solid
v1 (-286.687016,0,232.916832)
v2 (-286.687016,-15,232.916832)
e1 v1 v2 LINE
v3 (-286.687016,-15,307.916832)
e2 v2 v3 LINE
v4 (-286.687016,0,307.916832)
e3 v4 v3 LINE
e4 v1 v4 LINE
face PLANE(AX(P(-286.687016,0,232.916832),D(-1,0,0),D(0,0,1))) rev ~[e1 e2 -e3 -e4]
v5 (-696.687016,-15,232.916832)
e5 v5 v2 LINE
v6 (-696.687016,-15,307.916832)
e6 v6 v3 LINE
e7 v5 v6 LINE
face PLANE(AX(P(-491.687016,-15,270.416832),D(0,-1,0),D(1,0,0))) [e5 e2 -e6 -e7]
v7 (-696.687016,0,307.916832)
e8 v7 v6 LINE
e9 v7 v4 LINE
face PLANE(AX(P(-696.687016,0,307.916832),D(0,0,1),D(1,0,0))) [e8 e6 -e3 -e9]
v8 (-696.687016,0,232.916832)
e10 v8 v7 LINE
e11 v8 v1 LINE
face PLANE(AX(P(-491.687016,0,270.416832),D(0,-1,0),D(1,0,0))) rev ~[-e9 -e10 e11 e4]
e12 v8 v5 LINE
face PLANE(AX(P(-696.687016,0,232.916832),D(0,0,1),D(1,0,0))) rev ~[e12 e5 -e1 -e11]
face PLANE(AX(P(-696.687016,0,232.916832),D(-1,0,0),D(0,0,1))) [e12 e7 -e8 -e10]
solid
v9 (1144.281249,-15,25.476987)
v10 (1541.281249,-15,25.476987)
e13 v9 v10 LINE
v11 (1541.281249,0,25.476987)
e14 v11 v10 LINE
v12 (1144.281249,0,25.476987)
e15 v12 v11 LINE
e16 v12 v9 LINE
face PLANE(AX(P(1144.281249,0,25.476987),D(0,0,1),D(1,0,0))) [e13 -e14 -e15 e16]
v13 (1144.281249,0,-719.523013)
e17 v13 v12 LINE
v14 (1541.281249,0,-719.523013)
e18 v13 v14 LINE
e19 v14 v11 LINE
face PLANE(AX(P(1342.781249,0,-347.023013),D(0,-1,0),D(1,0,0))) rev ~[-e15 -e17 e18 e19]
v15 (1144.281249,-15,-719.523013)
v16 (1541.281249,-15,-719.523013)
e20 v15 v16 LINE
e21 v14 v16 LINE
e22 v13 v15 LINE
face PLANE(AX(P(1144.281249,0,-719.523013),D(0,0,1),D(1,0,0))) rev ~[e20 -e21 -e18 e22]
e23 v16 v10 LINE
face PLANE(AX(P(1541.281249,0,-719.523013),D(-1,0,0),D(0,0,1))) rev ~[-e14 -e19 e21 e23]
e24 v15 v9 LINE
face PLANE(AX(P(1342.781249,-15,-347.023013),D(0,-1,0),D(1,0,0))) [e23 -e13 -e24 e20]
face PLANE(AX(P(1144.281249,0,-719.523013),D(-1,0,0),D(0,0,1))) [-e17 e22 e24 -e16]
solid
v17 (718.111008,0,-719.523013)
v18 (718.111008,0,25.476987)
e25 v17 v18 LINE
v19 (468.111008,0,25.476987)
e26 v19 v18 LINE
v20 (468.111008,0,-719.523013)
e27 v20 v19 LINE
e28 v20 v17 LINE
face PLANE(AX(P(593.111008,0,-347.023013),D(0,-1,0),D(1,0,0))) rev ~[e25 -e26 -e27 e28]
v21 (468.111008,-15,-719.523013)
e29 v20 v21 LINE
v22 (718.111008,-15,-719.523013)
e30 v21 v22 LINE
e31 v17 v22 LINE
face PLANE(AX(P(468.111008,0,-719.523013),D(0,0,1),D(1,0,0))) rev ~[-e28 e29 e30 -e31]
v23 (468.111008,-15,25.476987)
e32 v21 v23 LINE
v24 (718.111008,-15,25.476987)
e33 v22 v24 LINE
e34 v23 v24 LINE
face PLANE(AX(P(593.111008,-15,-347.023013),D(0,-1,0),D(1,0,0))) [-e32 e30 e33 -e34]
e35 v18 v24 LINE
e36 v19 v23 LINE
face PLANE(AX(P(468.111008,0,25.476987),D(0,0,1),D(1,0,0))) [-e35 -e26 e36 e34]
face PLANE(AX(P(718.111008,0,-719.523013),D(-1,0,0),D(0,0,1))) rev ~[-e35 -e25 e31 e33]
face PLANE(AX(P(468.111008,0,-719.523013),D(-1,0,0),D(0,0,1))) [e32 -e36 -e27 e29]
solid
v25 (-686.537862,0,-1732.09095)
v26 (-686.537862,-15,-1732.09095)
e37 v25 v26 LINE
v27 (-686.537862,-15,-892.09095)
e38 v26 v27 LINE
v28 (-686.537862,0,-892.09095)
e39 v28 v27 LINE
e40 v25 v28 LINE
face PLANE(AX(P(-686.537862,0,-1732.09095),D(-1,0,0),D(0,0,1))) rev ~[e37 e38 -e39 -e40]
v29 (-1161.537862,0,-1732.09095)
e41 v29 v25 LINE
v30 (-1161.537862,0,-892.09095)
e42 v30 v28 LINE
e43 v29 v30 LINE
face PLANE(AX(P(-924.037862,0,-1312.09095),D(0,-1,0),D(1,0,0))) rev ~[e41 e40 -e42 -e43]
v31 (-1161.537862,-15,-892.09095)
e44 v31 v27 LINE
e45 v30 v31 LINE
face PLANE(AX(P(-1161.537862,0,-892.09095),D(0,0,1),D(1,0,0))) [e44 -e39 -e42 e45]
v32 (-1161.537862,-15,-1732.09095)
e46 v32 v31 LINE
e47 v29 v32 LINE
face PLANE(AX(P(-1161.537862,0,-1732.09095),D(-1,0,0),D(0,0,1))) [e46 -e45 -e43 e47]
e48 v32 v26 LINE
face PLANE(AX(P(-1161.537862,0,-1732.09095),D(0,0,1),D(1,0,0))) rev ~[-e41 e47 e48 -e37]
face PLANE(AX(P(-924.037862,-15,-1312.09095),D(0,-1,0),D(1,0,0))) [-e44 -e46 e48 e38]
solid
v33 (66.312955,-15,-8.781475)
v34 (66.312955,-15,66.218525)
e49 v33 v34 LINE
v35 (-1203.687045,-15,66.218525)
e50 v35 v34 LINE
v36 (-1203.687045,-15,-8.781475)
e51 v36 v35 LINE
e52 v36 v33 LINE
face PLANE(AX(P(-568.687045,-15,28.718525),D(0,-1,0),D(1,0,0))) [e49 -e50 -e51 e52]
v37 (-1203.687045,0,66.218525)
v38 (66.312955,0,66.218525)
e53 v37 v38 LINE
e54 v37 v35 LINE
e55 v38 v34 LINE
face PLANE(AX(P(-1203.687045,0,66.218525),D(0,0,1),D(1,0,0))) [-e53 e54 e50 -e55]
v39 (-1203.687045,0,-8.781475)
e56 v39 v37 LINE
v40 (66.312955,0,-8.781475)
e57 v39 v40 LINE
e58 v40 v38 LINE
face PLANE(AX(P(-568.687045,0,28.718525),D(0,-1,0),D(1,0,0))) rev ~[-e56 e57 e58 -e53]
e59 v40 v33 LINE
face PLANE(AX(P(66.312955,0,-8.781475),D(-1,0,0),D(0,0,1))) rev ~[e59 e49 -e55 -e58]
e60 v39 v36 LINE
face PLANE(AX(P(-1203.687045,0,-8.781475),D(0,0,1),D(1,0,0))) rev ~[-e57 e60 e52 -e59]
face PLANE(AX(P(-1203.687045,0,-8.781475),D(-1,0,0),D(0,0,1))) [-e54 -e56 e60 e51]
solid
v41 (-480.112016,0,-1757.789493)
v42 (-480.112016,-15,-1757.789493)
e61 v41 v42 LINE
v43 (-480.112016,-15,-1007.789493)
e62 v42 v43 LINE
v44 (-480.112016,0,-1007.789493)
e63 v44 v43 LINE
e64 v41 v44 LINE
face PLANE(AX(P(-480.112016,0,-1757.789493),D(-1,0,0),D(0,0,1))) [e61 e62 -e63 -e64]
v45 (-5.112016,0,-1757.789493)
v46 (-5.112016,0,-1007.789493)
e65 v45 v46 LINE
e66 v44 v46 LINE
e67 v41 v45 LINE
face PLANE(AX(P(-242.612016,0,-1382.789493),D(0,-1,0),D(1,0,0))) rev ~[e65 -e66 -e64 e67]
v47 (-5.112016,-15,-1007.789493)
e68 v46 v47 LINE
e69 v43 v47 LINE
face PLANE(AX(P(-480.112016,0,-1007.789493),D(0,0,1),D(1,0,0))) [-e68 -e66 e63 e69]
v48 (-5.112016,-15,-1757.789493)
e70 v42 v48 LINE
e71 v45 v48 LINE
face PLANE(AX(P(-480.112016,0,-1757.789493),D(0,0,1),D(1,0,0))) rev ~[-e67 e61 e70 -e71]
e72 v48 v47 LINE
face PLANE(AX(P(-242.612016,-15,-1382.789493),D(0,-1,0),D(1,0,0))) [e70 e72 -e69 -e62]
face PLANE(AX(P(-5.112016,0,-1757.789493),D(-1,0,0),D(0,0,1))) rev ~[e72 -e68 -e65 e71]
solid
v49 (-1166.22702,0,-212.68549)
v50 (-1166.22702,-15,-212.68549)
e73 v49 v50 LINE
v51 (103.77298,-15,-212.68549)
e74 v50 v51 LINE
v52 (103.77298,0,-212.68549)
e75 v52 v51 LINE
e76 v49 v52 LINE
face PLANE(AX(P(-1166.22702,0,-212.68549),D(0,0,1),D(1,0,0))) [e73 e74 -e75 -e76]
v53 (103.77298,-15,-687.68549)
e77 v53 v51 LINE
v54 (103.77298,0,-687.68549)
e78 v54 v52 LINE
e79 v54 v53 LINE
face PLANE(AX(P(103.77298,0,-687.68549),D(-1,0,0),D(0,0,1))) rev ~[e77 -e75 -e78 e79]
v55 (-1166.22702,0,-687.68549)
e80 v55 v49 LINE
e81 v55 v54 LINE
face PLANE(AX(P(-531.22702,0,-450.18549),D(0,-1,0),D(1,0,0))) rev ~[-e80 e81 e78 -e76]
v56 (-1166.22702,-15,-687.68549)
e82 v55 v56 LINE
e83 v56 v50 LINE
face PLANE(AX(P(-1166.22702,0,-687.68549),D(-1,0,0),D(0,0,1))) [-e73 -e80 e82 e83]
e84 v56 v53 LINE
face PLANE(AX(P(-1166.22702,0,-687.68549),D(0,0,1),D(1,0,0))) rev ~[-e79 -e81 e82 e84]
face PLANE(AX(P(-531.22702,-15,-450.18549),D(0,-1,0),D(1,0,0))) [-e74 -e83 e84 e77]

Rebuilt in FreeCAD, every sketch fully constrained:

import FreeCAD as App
import Part
import Sketcher

V = App.Vector


def add_polygon(sketch, points):
    """Adds a closed chain of lines whose ends are joined by coincident constraints."""
    first, n = sketch.GeometryCount, len(points)
    for a, b in zip(points, points[1:] + points[:1]):
        sketch.addGeometry(Part.LineSegment(App.Vector(*a, 0), App.Vector(*b, 0)), False)
    for i in range(n):
        sketch.addConstraint(Sketcher.Constraint("Coincident", first + i, 2, first + (i + 1) % n, 1))

doc = App.newDocument("Part")
body = doc.addObject("PartDesign::Body", "Body")

sketch1 = body.newObject("Sketcher::SketchObject", "Sketch")
sketch1.AttachmentSupport = (doc.getObject("XZ_Plane"), [""])
sketch1.MapMode = "FlatFace"
add_polygon(sketch1, [(-1204, 66), (-1204, -9), (66, -9), (66, 66)])
sketch1.addConstraint(Sketcher.Constraint("Vertical", 0))
sketch1.addConstraint(Sketcher.Constraint("Horizontal", 1))
sketch1.addConstraint(Sketcher.Constraint("Vertical", 2))
sketch1.addConstraint(Sketcher.Constraint("Horizontal", 3))
sketch1.addConstraint(Sketcher.Constraint("DistanceX", 1, 1, 1, 2, 1270.0))
sketch1.addConstraint(Sketcher.Constraint("DistanceY", 0, 2, 0, 1, 75.0))
sketch1.addConstraint(Sketcher.Constraint("DistanceX", 0, 2, -1, 1, 1203.687045))
sketch1.addConstraint(Sketcher.Constraint("DistanceY", 0, 2, -1, 1, 8.781475))
pad1 = body.newObject("PartDesign::Pad", "Pad")
pad1.Profile = sketch1
pad1.Length = 15
body2 = doc.addObject("PartDesign::Body", "Body001")

sketch2 = body2.newObject("Sketcher::SketchObject", "Sketch001")
sketch2.AttachmentSupport = (doc.getObject("XZ_Plane001"), [""])
sketch2.MapMode = "FlatFace"
add_polygon(sketch2, [(-1166, -213), (-1166, -688), (104, -688), (104, -213)])
sketch2.addConstraint(Sketcher.Constraint("Vertical", 0))
sketch2.addConstraint(Sketcher.Constraint("Horizontal", 1))
sketch2.addConstraint(Sketcher.Constraint("Vertical", 2))
sketch2.addConstraint(Sketcher.Constraint("Horizontal", 3))
sketch2.addConstraint(Sketcher.Constraint("DistanceX", 1, 1, 1, 2, 1270.0))
sketch2.addConstraint(Sketcher.Constraint("DistanceY", 0, 2, 0, 1, 475.0))
sketch2.addConstraint(Sketcher.Constraint("DistanceX", 0, 2, -1, 1, 1166.22702))
sketch2.addConstraint(Sketcher.Constraint("DistanceY", 0, 2, -1, 1, 687.68549))
pad2 = body2.newObject("PartDesign::Pad", "Pad001")
pad2.Profile = sketch2
pad2.Length = 15
body3 = doc.addObject("PartDesign::Body", "Body002")

sketch3 = body3.newObject("Sketcher::SketchObject", "Sketch002")
sketch3.AttachmentSupport = (doc.getObject("XZ_Plane002"), [""])
sketch3.MapMode = "FlatFace"
add_polygon(sketch3, [(-1162, -892), (-1162, -1732), (-687, -1732), (-687, -892)])
sketch3.addConstraint(Sketcher.Constraint("Vertical", 0))
sketch3.addConstraint(Sketcher.Constraint("Horizontal", 1))
sketch3.addConstraint(Sketcher.Constraint("Vertical", 2))
sketch3.addConstraint(Sketcher.Constraint("Horizontal", 3))
sketch3.addConstraint(Sketcher.Constraint("DistanceX", 1, 1, 1, 2, 475.0))
sketch3.addConstraint(Sketcher.Constraint("DistanceY", 0, 2, 0, 1, 840.0))
sketch3.addConstraint(Sketcher.Constraint("DistanceX", 0, 2, -1, 1, 1161.537862))
sketch3.addConstraint(Sketcher.Constraint("DistanceY", 0, 2, -1, 1, 1732.09095))
pad3 = body3.newObject("PartDesign::Pad", "Pad002")
pad3.Profile = sketch3
pad3.Length = 15
body4 = doc.addObject("PartDesign::Body", "Body003")

sketch4 = body4.newObject("Sketcher::SketchObject", "Sketch003")
sketch4.AttachmentSupport = (doc.getObject("XZ_Plane003"), [""])
sketch4.MapMode = "FlatFace"
add_polygon(sketch4, [(-697, 308), (-697, 233), (-287, 233), (-287, 308)])
sketch4.addConstraint(Sketcher.Constraint("Vertical", 0))
sketch4.addConstraint(Sketcher.Constraint("Horizontal", 1))
sketch4.addConstraint(Sketcher.Constraint("Vertical", 2))
sketch4.addConstraint(Sketcher.Constraint("Horizontal", 3))
sketch4.addConstraint(Sketcher.Constraint("DistanceX", 1, 1, 1, 2, 410.0))
sketch4.addConstraint(Sketcher.Constraint("DistanceY", 0, 2, 0, 1, 75.0))
sketch4.addConstraint(Sketcher.Constraint("DistanceY", -1, 1, 0, 2, 232.916832))
sketch4.addConstraint(Sketcher.Constraint("DistanceX", 0, 2, -1, 1, 696.687016))
pad4 = body4.newObject("PartDesign::Pad", "Pad003")
pad4.Profile = sketch4
pad4.Length = 15
body5 = doc.addObject("PartDesign::Body", "Body004")

sketch5 = body5.newObject("Sketcher::SketchObject", "Sketch004")
sketch5.AttachmentSupport = (doc.getObject("XZ_Plane004"), [""])
sketch5.MapMode = "FlatFace"
add_polygon(sketch5, [(-480, -1008), (-480, -1758), (-5, -1758), (-5, -1008)])
sketch5.addConstraint(Sketcher.Constraint("Vertical", 0))
sketch5.addConstraint(Sketcher.Constraint("Horizontal", 1))
sketch5.addConstraint(Sketcher.Constraint("Vertical", 2))
sketch5.addConstraint(Sketcher.Constraint("Horizontal", 3))
sketch5.addConstraint(Sketcher.Constraint("DistanceX", 1, 1, 1, 2, 475.0))
sketch5.addConstraint(Sketcher.Constraint("DistanceY", 0, 2, 0, 1, 750.0))
sketch5.addConstraint(Sketcher.Constraint("DistanceX", 0, 2, -1, 1, 480.112016))
sketch5.addConstraint(Sketcher.Constraint("DistanceY", 0, 2, -1, 1, 1757.789493))
pad5 = body5.newObject("PartDesign::Pad", "Pad004")
pad5.Profile = sketch5
pad5.Length = 15
body6 = doc.addObject("PartDesign::Body", "Body005")

sketch6 = body6.newObject("Sketcher::SketchObject", "Sketch005")
sketch6.AttachmentSupport = (doc.getObject("XZ_Plane005"), [""])
sketch6.MapMode = "FlatFace"
add_polygon(sketch6, [(1144, 25), (1144, -720), (1541, -720), (1541, 25)])
sketch6.addConstraint(Sketcher.Constraint("Vertical", 0))
sketch6.addConstraint(Sketcher.Constraint("Horizontal", 1))
sketch6.addConstraint(Sketcher.Constraint("Vertical", 2))
sketch6.addConstraint(Sketcher.Constraint("Horizontal", 3))
sketch6.addConstraint(Sketcher.Constraint("DistanceX", 1, 1, 1, 2, 397.0))
sketch6.addConstraint(Sketcher.Constraint("DistanceY", 0, 2, 0, 1, 745.0))
sketch6.addConstraint(Sketcher.Constraint("DistanceX", -1, 1, 0, 2, 1144.281249))
sketch6.addConstraint(Sketcher.Constraint("DistanceY", 0, 2, -1, 1, 719.523013))
pad6 = body6.newObject("PartDesign::Pad", "Pad005")
pad6.Profile = sketch6
pad6.Length = 15
body7 = doc.addObject("PartDesign::Body", "Body006")

sketch7 = body7.newObject("Sketcher::SketchObject", "Sketch006")
sketch7.AttachmentSupport = (doc.getObject("XZ_Plane006"), [""])
sketch7.MapMode = "FlatFace"
add_polygon(sketch7, [(468, 25), (468, -720), (718, -720), (718, 25)])
sketch7.addConstraint(Sketcher.Constraint("Vertical", 0))
sketch7.addConstraint(Sketcher.Constraint("Horizontal", 1))
sketch7.addConstraint(Sketcher.Constraint("Vertical", 2))
sketch7.addConstraint(Sketcher.Constraint("Horizontal", 3))
sketch7.addConstraint(Sketcher.Constraint("DistanceX", 1, 1, 1, 2, 250.0))
sketch7.addConstraint(Sketcher.Constraint("DistanceY", 0, 2, 0, 1, 745.0))
sketch7.addConstraint(Sketcher.Constraint("DistanceX", -1, 1, 0, 2, 468.111008))
sketch7.addConstraint(Sketcher.Constraint("DistanceY", 0, 2, -1, 1, 719.523013))
pad7 = body7.newObject("PartDesign::Pad", "Pad006")
pad7.Profile = sketch7
pad7.Length = 15

doc.recompute()
